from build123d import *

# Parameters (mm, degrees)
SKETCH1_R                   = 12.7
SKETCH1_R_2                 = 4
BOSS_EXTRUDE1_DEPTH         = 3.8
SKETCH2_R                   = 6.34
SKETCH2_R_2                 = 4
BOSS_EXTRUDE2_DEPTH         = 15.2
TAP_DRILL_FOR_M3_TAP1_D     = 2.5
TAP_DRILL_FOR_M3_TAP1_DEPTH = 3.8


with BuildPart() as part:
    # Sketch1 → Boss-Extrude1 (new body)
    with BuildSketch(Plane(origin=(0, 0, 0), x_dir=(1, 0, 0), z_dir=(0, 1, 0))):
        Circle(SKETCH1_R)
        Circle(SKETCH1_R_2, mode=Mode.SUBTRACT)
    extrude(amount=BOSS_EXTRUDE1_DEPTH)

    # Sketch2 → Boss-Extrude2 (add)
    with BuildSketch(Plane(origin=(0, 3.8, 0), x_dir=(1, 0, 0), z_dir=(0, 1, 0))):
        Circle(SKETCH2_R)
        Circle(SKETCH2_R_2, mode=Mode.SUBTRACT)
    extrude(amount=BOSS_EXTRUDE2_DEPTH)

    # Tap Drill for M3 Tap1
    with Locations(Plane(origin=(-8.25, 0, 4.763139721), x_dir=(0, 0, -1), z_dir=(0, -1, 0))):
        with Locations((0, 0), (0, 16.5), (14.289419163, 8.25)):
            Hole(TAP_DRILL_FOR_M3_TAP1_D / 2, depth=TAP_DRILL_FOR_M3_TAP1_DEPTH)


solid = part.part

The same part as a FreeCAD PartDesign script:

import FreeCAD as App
import Part
import Sketcher

V = App.Vector

doc = App.newDocument("Part")
body = doc.addObject("PartDesign::Body", "Body")

sketch1 = body.newObject("Sketcher::SketchObject", "Sketch")
sketch1.AttachmentSupport = (doc.getObject("XZ_Plane"), [""])
sketch1.MapMode = "FlatFace"
sketch1.addGeometry([
    Part.Circle(V(0, 0, 0), V(0, 0, 1), 12.7),
    Part.Circle(V(0, 0, 0), V(0, 0, 1), 4),
], False)
sketch1.addConstraint([
    Sketcher.Constraint("Coincident", 0, 3, -1, 1),
    Sketcher.Constraint("Coincident", 1, 3, -1, 1),
    Sketcher.Constraint("Diameter", 1, 8.0),
    Sketcher.Constraint("Diameter", 0, 25.4),
])
pad1 = body.newObject("PartDesign::Pad", "Pad")
pad1.Profile = sketch1
pad1.Length = 3.8
pad1.Reversed = True

sketch2 = body.newObject("Sketcher::SketchObject", "Sketch001")
sketch2.AttachmentSupport = (doc.getObject("XZ_Plane"), [""])
sketch2.MapMode = "FlatFace"
sketch2.AttachmentOffset = App.Placement(V(0, 0, -3.8), App.Rotation())
sketch2.addGeometry([
    Part.Circle(V(0, 0, 0), V(0, 0, 1), 6.3),
    Part.Circle(V(0, 0, 0), V(0, 0, 1), 4),
], False)
sketch2.addConstraint([
    Sketcher.Constraint("Coincident", 0, 3, -1, 1),
    Sketcher.Constraint("Coincident", 1, 3, -1, 1),
    Sketcher.Constraint("Diameter", 1, 8.0),
    Sketcher.Constraint("Diameter", 0, 12.68),
])
pad2 = body.newObject("PartDesign::Pad", "Pad001")
pad2.Profile = sketch2
pad2.Length = 15.2
pad2.Reversed = True

sketch3 = body.newObject("Sketcher::SketchObject", "Sketch002")
sketch3.AttachmentSupport = (doc.getObject("XZ_Plane"), [""])
sketch3.MapMode = "FlatFace"
sketch3.addGeometry([
    Part.Circle(V(-8.2, 4.8, 0), V(0, 0, 1), 1.2),
    Part.Circle(V(8.2, 4.8, 0), V(0, 0, 1), 1.2),
    Part.Circle(V(0, -9.5, 0), V(0, 0, 1), 1.2),
], False)
sketch3.addConstraint([
    Sketcher.Constraint("Equal", 0, 1),
    Sketcher.Constraint("Equal", 1, 2),
    Sketcher.Constraint("Symmetric", 0, 3, 1, 3, -2),
    Sketcher.Constraint("PointOnObject", 2, 3, -2),
    Sketcher.Constraint("Diameter", 0, 2.5),
    Sketcher.Constraint("DistanceX", 0, 3, 1, 3, 16.5),
    Sketcher.Constraint("DistanceY", -1, 1, 0, 3, 4.76314),
    Sketcher.Constraint("DistanceY", 2, 3, -1, 1, 9.526279),
])
doc.recompute()
hole = body.newObject("PartDesign::Hole", "Hole")
hole.Profile = sketch3
hole.ThreadType = "None"
hole.Diameter = 2.5
hole.DepthType = "Dimension"
hole.Depth = 3.8
hole.DrillPoint = "Flat"

doc.recompute()
